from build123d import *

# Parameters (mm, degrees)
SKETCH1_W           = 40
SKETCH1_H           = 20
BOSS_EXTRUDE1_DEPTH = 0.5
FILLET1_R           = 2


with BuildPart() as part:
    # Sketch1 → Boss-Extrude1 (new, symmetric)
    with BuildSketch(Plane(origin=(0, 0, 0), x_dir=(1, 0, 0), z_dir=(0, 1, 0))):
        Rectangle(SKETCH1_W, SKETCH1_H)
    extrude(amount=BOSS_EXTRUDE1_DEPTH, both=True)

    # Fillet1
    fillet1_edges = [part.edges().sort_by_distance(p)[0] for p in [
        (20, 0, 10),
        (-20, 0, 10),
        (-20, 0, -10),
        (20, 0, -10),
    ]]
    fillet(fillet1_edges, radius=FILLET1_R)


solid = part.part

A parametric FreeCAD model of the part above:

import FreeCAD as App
import Part
import Sketcher
from FreeCAD import Vector
Q = App.Units.Quantity


def edges_at(feature, points):
    """Names of the edges that pass closest to the given points."""
    edges = feature.Shape.Edges
    near = lambda p: min(range(len(edges)), key=lambda i: edges[i].distToShape(Part.Vertex(*p))[0])
    return sorted({f"Edge{near(p) + 1}" for p in points})


def add_polygon(sketch, points):
    """Adds a closed chain of lines whose ends are joined by coincident constraints."""
    first, n = sketch.GeometryCount, len(points)
    for a, b in zip(points, points[1:] + points[:1]):
        sketch.addGeometry(Part.LineSegment(App.Vector(*a, 0), App.Vector(*b, 0)), False)
    for i in range(n):
        sketch.addConstraint(Sketcher.Constraint("Coincident", first + i, 2, first + (i + 1) % n, 1))

doc = App.newDocument("Part")
params = doc.addObject("Spreadsheet::Sheet", "Params")
for row, (alias, value) in enumerate([
    ("sketch1_width", "40 mm"),
    ("sketch1_height", "20 mm"),
    ("pad1_length", "1 mm"),
    ("fillet_radius", "2 mm"),
], start=1):
    params.set(f"A{row}", alias)
    params.set(f"B{row}", "=" + value)
    params.setAlias(f"B{row}", alias)

body = doc.addObject("PartDesign::Body", "Body")

sketch1 = doc.addObject("Sketcher::SketchObject", "Sketch")
body.addObject(sketch1)
sketch1.AttachmentSupport = (doc.XZ_Plane, [""])
sketch1.MapMode = "FlatFace"
add_polygon(sketch1, [(-20, -10), (-20, 10), (20, 10), (20, -10)])
sketch1.addConstraint([
    Sketcher.Constraint("Vertical", 0),
    Sketcher.Constraint("Horizontal", 1),
    Sketcher.Constraint("Vertical", 2),
    Sketcher.Constraint("Horizontal", 3),
    Sketcher.Constraint("Symmetric", 0, 2, 2, 2, -1, 1),
    Sketcher.Constraint("DistanceX", 1, 1, 1, 2, Q("40 mm")),
    Sketcher.Constraint("DistanceY", 0, 1, 0, 2, Q("20 mm")),
])
sketch1.setExpression("Constraints[9]", "Params.sketch1_width")
sketch1.setExpression("Constraints[10]", "Params.sketch1_height")
pad1 = doc.addObject("PartDesign::Pad", "Pad")
body.addObject(pad1)
pad1.Profile = sketch1
pad1.setExpression("Length", "Params.pad1_length")
pad1.Midplane = True
doc.recompute()

fillet = doc.addObject("PartDesign::Fillet", "Fillet")
body.addObject(fillet)
fillet.Base = (pad1, edges_at(pad1, [
    (20, 0, 10),
    (-20, 0, 10),
    (-20, 0, -10),
    (20, 0, -10),
]))
fillet.setExpression("Radius", "Params.fillet_radius")

doc.recompute()
